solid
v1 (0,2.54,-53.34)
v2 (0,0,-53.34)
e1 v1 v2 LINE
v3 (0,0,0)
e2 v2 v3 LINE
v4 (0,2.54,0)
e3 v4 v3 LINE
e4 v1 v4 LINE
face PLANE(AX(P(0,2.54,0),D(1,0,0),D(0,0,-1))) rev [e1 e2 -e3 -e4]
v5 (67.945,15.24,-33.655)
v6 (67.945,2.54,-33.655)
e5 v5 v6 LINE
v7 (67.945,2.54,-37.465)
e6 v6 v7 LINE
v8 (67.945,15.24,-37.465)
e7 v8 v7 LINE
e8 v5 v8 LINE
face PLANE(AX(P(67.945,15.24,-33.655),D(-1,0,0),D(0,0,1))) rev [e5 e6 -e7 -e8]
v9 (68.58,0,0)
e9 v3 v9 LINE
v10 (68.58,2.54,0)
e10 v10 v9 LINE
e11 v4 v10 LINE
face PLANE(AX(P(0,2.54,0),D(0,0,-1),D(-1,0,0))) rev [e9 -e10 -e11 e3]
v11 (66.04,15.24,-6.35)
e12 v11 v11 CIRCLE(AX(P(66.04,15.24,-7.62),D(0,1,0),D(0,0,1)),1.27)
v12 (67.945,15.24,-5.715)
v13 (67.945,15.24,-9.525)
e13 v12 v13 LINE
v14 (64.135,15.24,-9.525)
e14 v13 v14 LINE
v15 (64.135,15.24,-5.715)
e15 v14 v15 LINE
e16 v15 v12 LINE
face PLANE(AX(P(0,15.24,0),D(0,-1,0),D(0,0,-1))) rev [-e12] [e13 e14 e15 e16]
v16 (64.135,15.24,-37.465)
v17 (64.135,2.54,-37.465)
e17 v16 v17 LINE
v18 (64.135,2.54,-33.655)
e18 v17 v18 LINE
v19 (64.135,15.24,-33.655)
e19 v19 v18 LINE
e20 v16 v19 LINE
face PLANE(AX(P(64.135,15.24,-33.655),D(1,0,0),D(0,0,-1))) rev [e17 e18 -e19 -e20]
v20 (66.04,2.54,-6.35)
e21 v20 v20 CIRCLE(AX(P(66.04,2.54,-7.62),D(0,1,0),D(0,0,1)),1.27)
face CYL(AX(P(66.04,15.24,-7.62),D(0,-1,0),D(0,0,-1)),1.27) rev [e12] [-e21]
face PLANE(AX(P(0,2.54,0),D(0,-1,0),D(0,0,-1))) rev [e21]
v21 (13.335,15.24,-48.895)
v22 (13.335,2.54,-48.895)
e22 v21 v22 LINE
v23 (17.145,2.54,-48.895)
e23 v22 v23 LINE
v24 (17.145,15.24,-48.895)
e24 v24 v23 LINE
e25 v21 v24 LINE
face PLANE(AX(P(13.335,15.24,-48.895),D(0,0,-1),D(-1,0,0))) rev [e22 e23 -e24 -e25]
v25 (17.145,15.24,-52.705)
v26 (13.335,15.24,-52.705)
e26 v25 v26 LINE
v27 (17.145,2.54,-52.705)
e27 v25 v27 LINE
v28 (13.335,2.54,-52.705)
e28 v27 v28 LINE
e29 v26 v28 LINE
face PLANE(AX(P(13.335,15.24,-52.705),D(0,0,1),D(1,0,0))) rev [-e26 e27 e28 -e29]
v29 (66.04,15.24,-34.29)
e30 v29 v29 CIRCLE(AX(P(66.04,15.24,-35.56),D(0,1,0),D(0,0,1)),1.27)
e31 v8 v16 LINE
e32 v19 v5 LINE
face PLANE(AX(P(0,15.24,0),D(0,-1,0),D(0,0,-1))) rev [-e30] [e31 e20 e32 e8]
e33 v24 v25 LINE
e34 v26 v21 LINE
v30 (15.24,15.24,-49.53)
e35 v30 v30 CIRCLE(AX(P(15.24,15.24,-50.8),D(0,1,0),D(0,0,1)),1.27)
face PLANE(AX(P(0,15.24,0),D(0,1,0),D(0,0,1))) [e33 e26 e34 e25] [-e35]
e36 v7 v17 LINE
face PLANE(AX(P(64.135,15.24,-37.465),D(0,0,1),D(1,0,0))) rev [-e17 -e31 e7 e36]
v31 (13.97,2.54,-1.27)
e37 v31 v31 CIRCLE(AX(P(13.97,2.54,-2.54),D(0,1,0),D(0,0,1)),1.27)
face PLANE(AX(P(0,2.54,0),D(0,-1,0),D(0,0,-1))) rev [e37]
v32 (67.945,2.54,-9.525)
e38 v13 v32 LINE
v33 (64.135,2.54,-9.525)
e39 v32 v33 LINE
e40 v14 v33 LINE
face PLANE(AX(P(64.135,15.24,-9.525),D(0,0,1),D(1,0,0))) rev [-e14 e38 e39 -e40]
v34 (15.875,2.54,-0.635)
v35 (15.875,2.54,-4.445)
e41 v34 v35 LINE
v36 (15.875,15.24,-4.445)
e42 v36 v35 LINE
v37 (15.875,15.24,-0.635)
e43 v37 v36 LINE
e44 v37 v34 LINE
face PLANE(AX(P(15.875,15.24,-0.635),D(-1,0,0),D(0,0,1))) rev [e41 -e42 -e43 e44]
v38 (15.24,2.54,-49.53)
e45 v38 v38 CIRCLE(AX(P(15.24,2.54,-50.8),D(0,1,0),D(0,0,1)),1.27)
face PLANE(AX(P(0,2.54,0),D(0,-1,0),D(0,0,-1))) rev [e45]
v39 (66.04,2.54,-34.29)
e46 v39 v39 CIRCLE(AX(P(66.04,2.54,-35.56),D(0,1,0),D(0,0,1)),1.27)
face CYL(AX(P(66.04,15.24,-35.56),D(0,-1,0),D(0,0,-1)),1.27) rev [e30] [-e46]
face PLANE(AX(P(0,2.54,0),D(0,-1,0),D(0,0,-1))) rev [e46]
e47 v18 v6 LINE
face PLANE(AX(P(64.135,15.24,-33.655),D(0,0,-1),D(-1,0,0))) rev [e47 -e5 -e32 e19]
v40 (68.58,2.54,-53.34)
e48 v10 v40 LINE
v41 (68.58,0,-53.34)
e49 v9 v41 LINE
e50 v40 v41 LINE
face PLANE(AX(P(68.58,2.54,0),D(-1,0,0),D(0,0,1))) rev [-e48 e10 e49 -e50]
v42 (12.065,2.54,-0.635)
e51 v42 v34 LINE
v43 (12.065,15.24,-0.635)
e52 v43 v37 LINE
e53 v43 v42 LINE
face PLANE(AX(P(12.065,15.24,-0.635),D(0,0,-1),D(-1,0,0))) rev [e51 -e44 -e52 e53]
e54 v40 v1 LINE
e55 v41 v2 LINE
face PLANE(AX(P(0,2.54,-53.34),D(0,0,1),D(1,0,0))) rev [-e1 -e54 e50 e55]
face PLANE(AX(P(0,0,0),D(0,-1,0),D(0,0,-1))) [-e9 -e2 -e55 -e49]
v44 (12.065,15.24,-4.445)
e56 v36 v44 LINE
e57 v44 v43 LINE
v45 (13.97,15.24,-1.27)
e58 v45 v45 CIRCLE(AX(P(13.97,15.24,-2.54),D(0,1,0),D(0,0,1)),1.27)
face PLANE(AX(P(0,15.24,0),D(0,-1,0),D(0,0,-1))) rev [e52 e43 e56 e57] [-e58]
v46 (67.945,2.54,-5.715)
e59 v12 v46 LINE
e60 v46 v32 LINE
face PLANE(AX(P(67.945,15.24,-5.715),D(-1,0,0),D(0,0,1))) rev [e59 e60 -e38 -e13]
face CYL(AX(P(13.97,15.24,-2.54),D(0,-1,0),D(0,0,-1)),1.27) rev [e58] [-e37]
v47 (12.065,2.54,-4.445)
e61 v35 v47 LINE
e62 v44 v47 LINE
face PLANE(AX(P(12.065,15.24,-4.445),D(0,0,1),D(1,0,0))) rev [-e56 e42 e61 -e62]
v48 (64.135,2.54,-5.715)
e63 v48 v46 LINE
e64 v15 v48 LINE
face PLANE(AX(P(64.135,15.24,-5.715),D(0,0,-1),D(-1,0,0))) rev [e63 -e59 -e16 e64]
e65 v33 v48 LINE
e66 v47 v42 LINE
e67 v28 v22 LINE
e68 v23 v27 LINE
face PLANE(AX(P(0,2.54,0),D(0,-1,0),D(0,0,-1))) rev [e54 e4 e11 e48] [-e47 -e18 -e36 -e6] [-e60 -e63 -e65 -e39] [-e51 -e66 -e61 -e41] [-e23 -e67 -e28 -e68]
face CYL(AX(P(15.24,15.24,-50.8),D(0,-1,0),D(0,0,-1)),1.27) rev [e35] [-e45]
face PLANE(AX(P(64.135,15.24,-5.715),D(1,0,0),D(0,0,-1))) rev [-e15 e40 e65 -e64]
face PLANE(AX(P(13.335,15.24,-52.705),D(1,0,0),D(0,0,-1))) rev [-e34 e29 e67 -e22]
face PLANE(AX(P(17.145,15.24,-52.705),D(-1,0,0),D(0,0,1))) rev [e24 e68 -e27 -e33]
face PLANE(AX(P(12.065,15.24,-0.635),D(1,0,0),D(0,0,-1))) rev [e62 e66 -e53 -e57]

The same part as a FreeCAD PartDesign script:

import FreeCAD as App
import Part
import Sketcher
Q = App.Units.Quantity

doc = App.newDocument("Part")
body = doc.addObject("PartDesign::Body", "Body")

# Sketch on XZ plane
sketch1 = body.newObject("Sketcher::SketchObject", "Sketch")
sketch1.AttachmentSupport = (doc.getObject("XZ_Plane"), [""])
sketch1.MapMode = "FlatFace"
sketch1.addGeometry([
    Part.LineSegment(App.Vector(0, -53, 0), App.Vector(0, 0, 0)),
    Part.LineSegment(App.Vector(0, 0, 0), App.Vector(69, 0, 0)),
    Part.LineSegment(App.Vector(69, 0, 0), App.Vector(69, -53, 0)),
    Part.LineSegment(App.Vector(69, -53, 0), App.Vector(0, -53, 0)),
], False)
sketch1.addConstraint([
    Sketcher.Constraint("Coincident", 0, 2, 1, 1),
    Sketcher.Constraint("Coincident", 1, 2, 2, 1),
    Sketcher.Constraint("Coincident", 2, 2, 3, 1),
    Sketcher.Constraint("Coincident", 3, 2, 0, 1),
    Sketcher.Constraint("Vertical", 0),
    Sketcher.Constraint("Horizontal", 1),
    Sketcher.Constraint("Vertical", 2),
    Sketcher.Constraint("Horizontal", 3),
    Sketcher.Constraint("Coincident", 0, 2, -1, 1),
    Sketcher.Constraint("DistanceX", 1, 1, 1, 2, Q("2.7 in")),
    Sketcher.Constraint("DistanceY", 0, 1, 0, 2, Q("2.1 in")),
])
pad1 = body.newObject("PartDesign::Pad", "Pad")
pad1.Profile = sketch1
pad1.Length = Q("0.1 in")
pad1.Reversed = True

# Sketch on XZ plane
sketch2 = body.newObject("Sketcher::SketchObject", "Sketch001")
sketch2.AttachmentSupport = (doc.getObject("XZ_Plane"), [""])
sketch2.MapMode = "FlatFace"
sketch2.AttachmentOffset = App.Placement(App.Vector(0, 0, -0.1 * 25.4), App.Rotation())
sketch2.addGeometry([
    Part.LineSegment(App.Vector(12.1, -4.4, 0), App.Vector(12.1, -0.6, 0)),  # 0
    Part.LineSegment(App.Vector(12.1, -0.6, 0), App.Vector(15.9, -0.6, 0)),  # 1
    Part.LineSegment(App.Vector(15.9, -0.6, 0), App.Vector(15.9, -4.4, 0)),  # 2
    Part.LineSegment(App.Vector(15.9, -4.4, 0), App.Vector(12.1, -4.4, 0)),  # 3
    Part.Circle(App.Vector(14, -2.5, 0), App.Vector(0, 0, 1), 1.3),  # 4
], False)
sketch2.addConstraint([
    Sketcher.Constraint("Coincident", 0, 2, 1, 1),
    Sketcher.Constraint("Coincident", 1, 2, 2, 1),
    Sketcher.Constraint("Coincident", 2, 2, 3, 1),
    Sketcher.Constraint("Coincident", 3, 2, 0, 1),
    Sketcher.Constraint("Vertical", 0),
    Sketcher.Constraint("Horizontal", 1),
    Sketcher.Constraint("Vertical", 2),
    Sketcher.Constraint("Horizontal", 3),
    Sketcher.Constraint("Equal", 3, 0),
    Sketcher.Constraint("Diameter", 4, Q("0.1 in")),
    Sketcher.Constraint("DistanceX", 1, 1, 1, 2, Q("0.15 in")),
    Sketcher.Constraint("DistanceY", 4, 3, -1, 1, Q("0.1 in")),
    Sketcher.Constraint("DistanceX", -1, 1, 4, 3, Q("0.55 in")),
    Sketcher.Constraint("DistanceX", -1, 1, 0, 2, Q("0.475 in")),
    Sketcher.Constraint("DistanceY", 0, 2, -1, 1, Q("0.025 in")),
])
pad2 = body.newObject("PartDesign::Pad", "Pad001")
pad2.Profile = sketch2
pad2.Length = Q("0.5 in")
pad2.Reversed = True

# Sketch on XZ plane
sketch3 = body.newObject("Sketcher::SketchObject", "Sketch002")
sketch3.AttachmentSupport = (doc.getObject("XZ_Plane"), [""])
sketch3.MapMode = "FlatFace"
sketch3.AttachmentOffset = App.Placement(App.Vector(0, 0, -0.1 * 25.4), App.Rotation())
sketch3.addGeometry([
    Part.LineSegment(App.Vector(13.3, -52.7, 0), App.Vector(13.3, -48.9, 0)),  # 0
    Part.LineSegment(App.Vector(13.3, -48.9, 0), App.Vector(17.1, -48.9, 0)),  # 1
    Part.LineSegment(App.Vector(17.1, -48.9, 0), App.Vector(17.1, -52.7, 0)),  # 2
    Part.LineSegment(App.Vector(17.1, -52.7, 0), App.Vector(13.3, -52.7, 0)),  # 3
    Part.Circle(App.Vector(15.2, -50.8, 0), App.Vector(0, 0, 1), 1.3),  # 4
    Part.LineSegment(App.Vector(64.1, -37.5, 0), App.Vector(64.1, -33.7, 0)),  # 5
    Part.LineSegment(App.Vector(64.1, -33.7, 0), App.Vector(67.9, -33.7, 0)),  # 6
    Part.LineSegment(App.Vector(67.9, -33.7, 0), App.Vector(67.9, -37.5, 0)),  # 7
    Part.LineSegment(App.Vector(67.9, -37.5, 0), App.Vector(64.1, -37.5, 0)),  # 8
    Part.Circle(App.Vector(66, -35.6, 0), App.Vector(0, 0, 1), 1.3),  # 9
    Part.LineSegment(App.Vector(64.1, -9.5, 0), App.Vector(64.1, -5.7, 0)),  # 10
    Part.LineSegment(App.Vector(64.1, -5.7, 0), App.Vector(67.9, -5.7, 0)),  # 11
    Part.LineSegment(App.Vector(67.9, -5.7, 0), App.Vector(67.9, -9.5, 0)),  # 12
    Part.LineSegment(App.Vector(67.9, -9.5, 0), App.Vector(64.1, -9.5, 0)),  # 13
    Part.Circle(App.Vector(66, -7.6, 0), App.Vector(0, 0, 1), 1.3),  # 14
], False)
sketch3.addConstraint([
    Sketcher.Constraint("Coincident", 0, 2, 1, 1),
    Sketcher.Constraint("Coincident", 1, 2, 2, 1),
    Sketcher.Constraint("Coincident", 2, 2, 3, 1),
    Sketcher.Constraint("Coincident", 3, 2, 0, 1),
    Sketcher.Constraint("Coincident", 5, 2, 6, 1),
    Sketcher.Constraint("Coincident", 6, 2, 7, 1),
    Sketcher.Constraint("Coincident", 7, 2, 8, 1),
    Sketcher.Constraint("Coincident", 8, 2, 5, 1),
    Sketcher.Constraint("Coincident", 10, 2, 11, 1),
    Sketcher.Constraint("Coincident", 11, 2, 12, 1),
    Sketcher.Constraint("Coincident", 12, 2, 13, 1),
    Sketcher.Constraint("Coincident", 13, 2, 10, 1),
    Sketcher.Constraint("Vertical", 0),
    Sketcher.Constraint("Horizontal", 1),
    Sketcher.Constraint("Vertical", 2),
    Sketcher.Constraint("Horizontal", 3),
    Sketcher.Constraint("Vertical", 5),
    Sketcher.Constraint("Horizontal", 6),
    Sketcher.Constraint("Vertical", 7),
    Sketcher.Constraint("Horizontal", 8),
    Sketcher.Constraint("Vertical", 10),
    Sketcher.Constraint("Horizontal", 11),
    Sketcher.Constraint("Vertical", 12),
    Sketcher.Constraint("Horizontal", 13),
    Sketcher.Constraint("Equal", 4, 9),
    Sketcher.Constraint("Equal", 9, 14),
    Sketcher.Constraint("Vertical", 9, 3, 14, 3),
    Sketcher.Constraint("Vertical", 8, 2, 10, 2),
    Sketcher.Constraint("Vertical", 7, 2, 11, 2),
    Sketcher.Constraint("Equal", 3, 6),
    Sketcher.Constraint("Equal", 13, 0),
    Sketcher.Constraint("Equal", 2, 5),
    Sketcher.Constraint("Equal", 7, 10),
    Sketcher.Constraint("Diameter", 4, Q("0.1 in")),
    Sketcher.Constraint("DistanceY", 4, 3, -1, 1, Q("2 in")),
    Sketcher.Constraint("DistanceX", 4, 3, 9, 3, Q("2 in")),
    Sketcher.Constraint("DistanceX", 1, 2, 6, 2, Q("2 in")),
    Sketcher.Constraint("DistanceX", 1, 1, 1, 2, Q("0.15 in")),
    Sketcher.Constraint("DistanceX", -1, 1, 4, 3, Q("0.6 in")),
    Sketcher.Constraint("DistanceY", 9, 3, -1, 1, Q("1.4 in")),
    Sketcher.Constraint("DistanceY", 14, 3, -1, 1, Q("0.3 in")),
    Sketcher.Constraint("DistanceY", 1, 2, 5, 2, Q("0.6 in")),
    Sketcher.Constraint("DistanceY", 5, 2, 10, 2, Q("1.1 in")),
    Sketcher.Constraint("DistanceX", -1, 1, 0, 2, Q("0.525 in")),
    Sketcher.Constraint("DistanceY", 0, 2, -1, 1, Q("1.925 in")),
])
pad3 = body.newObject("PartDesign::Pad", "Pad002")
pad3.Profile = sketch3
pad3.Length = Q("0.5 in")
pad3.Reversed = True

doc.recompute()
